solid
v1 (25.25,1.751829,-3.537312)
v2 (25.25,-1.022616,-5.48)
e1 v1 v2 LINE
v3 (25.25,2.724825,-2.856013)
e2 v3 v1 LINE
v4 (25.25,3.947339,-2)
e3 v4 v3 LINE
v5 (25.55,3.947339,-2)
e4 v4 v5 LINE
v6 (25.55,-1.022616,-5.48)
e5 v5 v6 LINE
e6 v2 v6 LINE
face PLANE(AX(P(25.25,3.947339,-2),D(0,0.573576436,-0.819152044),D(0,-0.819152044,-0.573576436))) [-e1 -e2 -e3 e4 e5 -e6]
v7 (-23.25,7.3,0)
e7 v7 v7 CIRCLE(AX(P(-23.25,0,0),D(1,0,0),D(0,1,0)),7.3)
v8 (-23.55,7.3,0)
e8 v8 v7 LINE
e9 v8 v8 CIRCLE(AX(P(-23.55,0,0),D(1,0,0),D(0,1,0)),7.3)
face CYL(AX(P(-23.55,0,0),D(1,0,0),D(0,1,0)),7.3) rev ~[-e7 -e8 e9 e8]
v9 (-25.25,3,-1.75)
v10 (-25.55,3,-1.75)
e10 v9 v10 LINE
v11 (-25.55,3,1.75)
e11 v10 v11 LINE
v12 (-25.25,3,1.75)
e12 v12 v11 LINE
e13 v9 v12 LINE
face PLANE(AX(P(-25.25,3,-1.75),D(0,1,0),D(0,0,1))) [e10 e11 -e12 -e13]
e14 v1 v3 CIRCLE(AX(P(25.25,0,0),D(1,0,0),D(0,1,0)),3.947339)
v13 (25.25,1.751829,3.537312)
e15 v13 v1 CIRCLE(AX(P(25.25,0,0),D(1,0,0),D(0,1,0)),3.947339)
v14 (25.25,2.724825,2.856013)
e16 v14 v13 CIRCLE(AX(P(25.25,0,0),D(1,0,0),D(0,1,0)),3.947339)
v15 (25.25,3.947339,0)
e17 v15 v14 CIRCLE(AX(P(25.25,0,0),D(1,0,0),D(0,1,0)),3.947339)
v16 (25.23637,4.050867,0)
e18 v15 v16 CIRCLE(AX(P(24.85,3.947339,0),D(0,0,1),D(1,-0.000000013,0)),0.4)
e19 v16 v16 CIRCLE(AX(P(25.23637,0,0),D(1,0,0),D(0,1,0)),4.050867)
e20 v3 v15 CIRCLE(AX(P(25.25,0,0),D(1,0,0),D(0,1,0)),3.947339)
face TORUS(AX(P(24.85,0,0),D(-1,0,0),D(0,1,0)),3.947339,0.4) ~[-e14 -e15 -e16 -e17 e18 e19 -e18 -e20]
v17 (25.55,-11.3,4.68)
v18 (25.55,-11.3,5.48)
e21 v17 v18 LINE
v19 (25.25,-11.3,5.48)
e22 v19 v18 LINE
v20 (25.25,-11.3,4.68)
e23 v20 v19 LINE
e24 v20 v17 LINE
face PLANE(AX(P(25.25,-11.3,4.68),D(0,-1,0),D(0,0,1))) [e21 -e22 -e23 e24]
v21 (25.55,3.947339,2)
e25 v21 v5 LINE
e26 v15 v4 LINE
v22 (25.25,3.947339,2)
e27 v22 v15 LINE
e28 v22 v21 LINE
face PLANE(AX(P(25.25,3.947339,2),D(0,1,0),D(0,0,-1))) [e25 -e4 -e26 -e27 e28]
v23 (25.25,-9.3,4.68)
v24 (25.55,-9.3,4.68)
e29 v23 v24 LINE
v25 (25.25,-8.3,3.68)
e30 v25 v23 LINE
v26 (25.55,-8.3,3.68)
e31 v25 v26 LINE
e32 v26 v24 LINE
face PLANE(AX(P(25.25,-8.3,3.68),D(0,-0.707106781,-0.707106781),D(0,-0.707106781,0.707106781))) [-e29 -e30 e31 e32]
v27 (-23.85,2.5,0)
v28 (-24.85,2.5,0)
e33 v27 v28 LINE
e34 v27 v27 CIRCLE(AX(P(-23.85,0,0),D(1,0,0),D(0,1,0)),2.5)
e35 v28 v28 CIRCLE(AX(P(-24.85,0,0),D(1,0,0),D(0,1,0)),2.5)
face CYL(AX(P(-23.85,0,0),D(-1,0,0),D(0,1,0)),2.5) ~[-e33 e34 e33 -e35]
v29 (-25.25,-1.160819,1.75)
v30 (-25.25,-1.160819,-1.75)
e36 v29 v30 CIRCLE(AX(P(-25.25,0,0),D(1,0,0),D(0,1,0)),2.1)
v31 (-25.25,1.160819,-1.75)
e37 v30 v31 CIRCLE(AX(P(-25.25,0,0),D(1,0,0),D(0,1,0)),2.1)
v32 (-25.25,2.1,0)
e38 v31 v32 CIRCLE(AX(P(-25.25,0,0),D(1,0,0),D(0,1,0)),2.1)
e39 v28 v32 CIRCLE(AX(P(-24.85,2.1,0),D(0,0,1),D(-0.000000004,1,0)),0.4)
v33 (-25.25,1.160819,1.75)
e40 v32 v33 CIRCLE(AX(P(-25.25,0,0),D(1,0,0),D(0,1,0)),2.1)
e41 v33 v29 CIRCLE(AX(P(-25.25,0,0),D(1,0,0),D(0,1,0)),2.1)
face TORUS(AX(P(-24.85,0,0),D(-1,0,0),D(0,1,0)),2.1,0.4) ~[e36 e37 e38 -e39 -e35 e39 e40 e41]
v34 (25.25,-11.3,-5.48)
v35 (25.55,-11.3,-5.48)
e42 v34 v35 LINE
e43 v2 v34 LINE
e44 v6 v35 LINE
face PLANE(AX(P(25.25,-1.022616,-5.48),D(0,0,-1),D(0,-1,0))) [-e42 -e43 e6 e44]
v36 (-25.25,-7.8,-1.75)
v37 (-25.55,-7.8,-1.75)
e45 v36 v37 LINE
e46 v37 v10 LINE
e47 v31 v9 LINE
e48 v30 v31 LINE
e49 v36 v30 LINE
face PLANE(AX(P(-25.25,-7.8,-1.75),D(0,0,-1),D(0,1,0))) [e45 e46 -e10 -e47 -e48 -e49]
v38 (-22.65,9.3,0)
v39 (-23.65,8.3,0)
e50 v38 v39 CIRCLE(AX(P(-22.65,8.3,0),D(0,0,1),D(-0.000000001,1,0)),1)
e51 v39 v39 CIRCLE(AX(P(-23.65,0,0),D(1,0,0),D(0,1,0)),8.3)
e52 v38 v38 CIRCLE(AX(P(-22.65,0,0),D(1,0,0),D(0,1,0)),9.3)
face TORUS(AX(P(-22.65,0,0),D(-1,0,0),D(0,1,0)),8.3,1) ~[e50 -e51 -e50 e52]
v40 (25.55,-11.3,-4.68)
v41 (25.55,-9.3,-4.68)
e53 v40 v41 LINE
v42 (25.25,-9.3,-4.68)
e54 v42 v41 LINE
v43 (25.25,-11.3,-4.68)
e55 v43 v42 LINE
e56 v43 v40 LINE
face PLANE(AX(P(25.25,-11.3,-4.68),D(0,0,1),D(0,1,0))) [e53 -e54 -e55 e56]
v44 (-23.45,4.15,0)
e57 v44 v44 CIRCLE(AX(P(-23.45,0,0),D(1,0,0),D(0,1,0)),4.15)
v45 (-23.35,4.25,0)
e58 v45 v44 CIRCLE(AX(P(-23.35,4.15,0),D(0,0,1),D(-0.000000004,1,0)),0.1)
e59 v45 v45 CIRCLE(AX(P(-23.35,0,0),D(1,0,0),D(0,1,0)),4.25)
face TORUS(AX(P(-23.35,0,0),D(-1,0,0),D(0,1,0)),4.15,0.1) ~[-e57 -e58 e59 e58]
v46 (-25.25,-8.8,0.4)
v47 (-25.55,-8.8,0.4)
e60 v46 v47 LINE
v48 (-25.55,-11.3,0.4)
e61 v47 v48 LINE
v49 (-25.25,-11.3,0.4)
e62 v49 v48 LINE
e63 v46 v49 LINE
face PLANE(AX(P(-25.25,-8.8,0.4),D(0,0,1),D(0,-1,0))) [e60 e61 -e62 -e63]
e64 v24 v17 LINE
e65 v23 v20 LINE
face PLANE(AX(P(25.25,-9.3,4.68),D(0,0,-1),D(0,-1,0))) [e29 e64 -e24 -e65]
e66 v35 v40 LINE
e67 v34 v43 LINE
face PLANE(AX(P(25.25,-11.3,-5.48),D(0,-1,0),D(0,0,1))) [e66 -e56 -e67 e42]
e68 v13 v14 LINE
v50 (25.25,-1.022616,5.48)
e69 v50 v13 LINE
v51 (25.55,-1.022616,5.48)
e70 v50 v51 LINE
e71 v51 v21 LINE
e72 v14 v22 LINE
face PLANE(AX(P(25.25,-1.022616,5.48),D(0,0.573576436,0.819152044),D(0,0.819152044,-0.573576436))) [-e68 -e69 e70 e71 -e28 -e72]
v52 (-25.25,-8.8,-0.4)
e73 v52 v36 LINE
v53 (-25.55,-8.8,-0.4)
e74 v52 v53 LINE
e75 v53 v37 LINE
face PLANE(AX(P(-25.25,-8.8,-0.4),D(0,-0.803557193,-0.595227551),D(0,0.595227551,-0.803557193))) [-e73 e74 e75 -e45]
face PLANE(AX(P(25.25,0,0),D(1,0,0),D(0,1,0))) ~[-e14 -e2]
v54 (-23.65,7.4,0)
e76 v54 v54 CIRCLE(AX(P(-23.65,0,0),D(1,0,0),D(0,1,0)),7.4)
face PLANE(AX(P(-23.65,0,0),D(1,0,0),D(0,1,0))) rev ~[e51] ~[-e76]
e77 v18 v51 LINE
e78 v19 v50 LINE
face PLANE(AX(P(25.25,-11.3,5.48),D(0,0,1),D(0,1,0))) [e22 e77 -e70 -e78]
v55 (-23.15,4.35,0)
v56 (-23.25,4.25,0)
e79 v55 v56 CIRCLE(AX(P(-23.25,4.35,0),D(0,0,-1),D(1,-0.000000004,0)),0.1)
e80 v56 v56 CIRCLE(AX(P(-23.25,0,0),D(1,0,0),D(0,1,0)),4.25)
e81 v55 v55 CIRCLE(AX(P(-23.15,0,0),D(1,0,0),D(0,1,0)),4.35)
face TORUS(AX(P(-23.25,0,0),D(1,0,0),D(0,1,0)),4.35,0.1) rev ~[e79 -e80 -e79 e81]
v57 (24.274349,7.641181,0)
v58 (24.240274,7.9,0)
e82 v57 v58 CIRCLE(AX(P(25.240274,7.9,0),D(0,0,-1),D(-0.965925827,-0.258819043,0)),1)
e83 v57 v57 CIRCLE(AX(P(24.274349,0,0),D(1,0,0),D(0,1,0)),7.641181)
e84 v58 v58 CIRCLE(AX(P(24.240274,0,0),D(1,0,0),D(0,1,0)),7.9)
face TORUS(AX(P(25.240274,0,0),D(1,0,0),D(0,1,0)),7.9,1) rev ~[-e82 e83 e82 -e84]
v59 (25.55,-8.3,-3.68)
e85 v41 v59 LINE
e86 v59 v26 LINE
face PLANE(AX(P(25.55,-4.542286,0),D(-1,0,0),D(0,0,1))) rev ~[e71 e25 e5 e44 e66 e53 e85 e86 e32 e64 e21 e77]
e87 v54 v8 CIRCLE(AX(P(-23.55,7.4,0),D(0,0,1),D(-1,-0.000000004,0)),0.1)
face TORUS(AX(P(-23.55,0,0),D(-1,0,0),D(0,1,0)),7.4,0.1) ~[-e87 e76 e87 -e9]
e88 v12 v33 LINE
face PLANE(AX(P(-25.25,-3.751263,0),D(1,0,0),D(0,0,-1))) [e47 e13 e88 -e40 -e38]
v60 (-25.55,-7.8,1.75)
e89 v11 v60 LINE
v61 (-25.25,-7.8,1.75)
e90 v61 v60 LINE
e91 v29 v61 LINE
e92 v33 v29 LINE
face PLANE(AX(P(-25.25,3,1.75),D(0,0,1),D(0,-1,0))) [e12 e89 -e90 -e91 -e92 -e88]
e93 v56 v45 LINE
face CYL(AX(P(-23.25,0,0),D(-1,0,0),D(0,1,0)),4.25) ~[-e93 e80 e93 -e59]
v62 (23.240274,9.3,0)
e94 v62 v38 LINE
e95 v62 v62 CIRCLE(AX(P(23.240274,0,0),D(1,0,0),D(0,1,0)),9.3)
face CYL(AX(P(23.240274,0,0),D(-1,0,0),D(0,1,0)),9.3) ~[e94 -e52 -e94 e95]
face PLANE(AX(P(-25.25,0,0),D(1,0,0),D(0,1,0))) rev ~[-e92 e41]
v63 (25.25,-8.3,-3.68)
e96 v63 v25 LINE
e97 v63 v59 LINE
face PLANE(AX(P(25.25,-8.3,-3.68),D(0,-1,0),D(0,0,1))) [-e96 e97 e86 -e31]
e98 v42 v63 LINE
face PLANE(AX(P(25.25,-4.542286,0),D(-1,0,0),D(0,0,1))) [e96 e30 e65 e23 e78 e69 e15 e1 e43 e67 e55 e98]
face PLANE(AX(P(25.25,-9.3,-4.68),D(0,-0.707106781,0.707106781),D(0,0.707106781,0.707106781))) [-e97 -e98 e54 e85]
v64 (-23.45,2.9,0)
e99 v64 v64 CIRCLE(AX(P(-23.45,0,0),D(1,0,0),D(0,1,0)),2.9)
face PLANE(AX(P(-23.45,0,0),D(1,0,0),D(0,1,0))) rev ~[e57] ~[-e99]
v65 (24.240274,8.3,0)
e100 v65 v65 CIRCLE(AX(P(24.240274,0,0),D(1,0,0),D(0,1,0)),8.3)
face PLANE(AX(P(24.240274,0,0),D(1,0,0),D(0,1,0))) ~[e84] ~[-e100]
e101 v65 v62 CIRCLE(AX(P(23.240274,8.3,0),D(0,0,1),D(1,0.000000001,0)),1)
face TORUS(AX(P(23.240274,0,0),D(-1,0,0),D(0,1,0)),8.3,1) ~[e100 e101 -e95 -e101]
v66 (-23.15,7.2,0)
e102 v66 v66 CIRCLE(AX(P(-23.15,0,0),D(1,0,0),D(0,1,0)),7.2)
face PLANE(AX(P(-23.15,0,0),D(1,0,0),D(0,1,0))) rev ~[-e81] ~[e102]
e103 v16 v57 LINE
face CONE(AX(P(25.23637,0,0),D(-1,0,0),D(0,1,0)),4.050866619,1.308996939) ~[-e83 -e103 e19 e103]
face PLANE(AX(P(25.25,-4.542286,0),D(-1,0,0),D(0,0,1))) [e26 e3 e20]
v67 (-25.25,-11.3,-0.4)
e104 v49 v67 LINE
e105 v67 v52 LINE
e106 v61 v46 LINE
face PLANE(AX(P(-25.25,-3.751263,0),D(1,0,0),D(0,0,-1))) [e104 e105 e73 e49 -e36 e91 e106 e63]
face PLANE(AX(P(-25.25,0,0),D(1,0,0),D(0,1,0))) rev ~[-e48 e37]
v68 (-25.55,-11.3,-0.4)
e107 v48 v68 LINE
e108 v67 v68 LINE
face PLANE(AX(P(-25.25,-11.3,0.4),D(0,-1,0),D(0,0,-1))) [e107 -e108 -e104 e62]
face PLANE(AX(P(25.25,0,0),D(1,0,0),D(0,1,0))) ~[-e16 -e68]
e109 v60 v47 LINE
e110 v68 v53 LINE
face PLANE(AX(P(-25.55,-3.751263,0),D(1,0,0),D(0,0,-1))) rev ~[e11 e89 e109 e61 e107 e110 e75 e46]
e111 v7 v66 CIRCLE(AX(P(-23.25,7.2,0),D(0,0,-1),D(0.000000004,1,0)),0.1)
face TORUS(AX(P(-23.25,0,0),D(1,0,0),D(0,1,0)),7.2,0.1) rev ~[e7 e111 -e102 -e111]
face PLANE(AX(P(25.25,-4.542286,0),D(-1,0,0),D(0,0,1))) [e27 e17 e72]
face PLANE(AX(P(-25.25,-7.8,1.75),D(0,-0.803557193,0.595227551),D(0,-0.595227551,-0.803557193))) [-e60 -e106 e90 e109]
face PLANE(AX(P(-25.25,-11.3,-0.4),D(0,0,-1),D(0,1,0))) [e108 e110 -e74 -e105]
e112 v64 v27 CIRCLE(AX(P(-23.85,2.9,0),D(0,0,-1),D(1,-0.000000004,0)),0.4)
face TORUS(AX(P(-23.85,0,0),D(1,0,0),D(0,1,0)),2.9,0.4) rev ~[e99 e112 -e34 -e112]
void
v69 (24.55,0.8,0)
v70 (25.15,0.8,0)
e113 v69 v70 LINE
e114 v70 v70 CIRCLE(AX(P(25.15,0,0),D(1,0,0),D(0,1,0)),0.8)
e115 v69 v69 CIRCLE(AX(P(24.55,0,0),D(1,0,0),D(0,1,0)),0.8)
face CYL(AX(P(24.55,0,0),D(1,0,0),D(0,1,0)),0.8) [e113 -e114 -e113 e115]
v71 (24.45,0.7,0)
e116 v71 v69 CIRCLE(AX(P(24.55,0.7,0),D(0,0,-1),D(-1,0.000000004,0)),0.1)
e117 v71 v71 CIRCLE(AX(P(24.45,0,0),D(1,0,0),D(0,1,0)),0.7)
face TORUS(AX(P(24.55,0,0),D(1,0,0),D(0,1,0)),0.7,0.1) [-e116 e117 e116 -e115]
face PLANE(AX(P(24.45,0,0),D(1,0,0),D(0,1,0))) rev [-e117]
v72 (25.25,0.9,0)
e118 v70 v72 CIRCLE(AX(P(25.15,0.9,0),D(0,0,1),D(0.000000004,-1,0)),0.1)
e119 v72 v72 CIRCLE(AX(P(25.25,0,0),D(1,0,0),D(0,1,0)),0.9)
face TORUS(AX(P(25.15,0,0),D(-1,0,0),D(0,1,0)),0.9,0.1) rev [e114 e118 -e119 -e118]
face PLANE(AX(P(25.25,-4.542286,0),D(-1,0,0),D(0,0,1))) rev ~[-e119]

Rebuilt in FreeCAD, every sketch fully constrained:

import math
import FreeCAD as App
import Part
import Sketcher
from FreeCAD import Vector
Q = App.Units.Quantity


def add_polygon(sketch, points):
    """Adds a closed chain of lines whose ends are joined by coincident constraints."""
    first, n = sketch.GeometryCount, len(points)
    for a, b in zip(points, points[1:] + points[:1]):
        sketch.addGeometry(Part.LineSegment(App.Vector(*a, 0), App.Vector(*b, 0)), False)
    for i in range(n):
        sketch.addConstraint(Sketcher.Constraint("Coincident", first + i, 2, first + (i + 1) % n, 1))

doc = App.newDocument("Part")
body = doc.addObject("PartDesign::Body", "Body")

sketch1 = doc.addObject("Sketcher::SketchObject", "Sketch")
body.addObject(sketch1)
sketch1.AttachmentSupport = (doc.XY_Plane, [""])
sketch1.MapMode = "FlatFace"
sketch1.addGeometry([
    Part.LineSegment(Vector(-25.25, 0, 0), Vector(24.45, 0, 0)),
    Part.LineSegment(Vector(24.45, 0, 0), Vector(24.45, 0.7, 0)),
    Part.ArcOfCircle(Part.Circle(Vector(24.55, 0.7, 0), Vector(0, 0, 1), 0.1), math.radians(90), math.radians(180)),
    Part.LineSegment(Vector(24.55, 0.8, 0), Vector(25.15, 0.8, 0)),
    Part.ArcOfCircle(Part.Circle(Vector(25.15, 0.9, 0), Vector(0, 0, 1), 0.1), math.radians(-90), math.radians(0)),
    Part.LineSegment(Vector(25.25, 0.9, 0), Vector(25.25, 3.947339, 0)),
    Part.ArcOfCircle(Part.Circle(Vector(24.85, 3.947339, 0), Vector(0, 0, 1), 0.4), math.radians(-0.000001), math.radians(15)),
    Part.LineSegment(Vector(25.23637, 4.050867, 0), Vector(24.274349, 7.641181, 0)),
    Part.ArcOfCircle(Part.Circle(Vector(25.240274, 7.9, 0), Vector(0, 0, 1), 1), math.radians(-180), math.radians(-165)),
    Part.LineSegment(Vector(24.240274, 7.9, 0), Vector(24.240274, 8.3, 0)),
    Part.ArcOfCircle(Part.Circle(Vector(23.240274, 8.3, 0), Vector(0, 0, 1), 1), math.radians(0), math.radians(90)),
    Part.LineSegment(Vector(23.240274, 9.3, 0), Vector(-22.65, 9.3, 0)),
    Part.ArcOfCircle(Part.Circle(Vector(-22.65, 8.3, 0), Vector(0, 0, 1), 1), math.radians(90), math.radians(180)),
    Part.LineSegment(Vector(-23.65, 8.3, 0), Vector(-23.65, 7.4, 0)),
    Part.ArcOfCircle(Part.Circle(Vector(-23.55, 7.4, 0), Vector(0, 0, 1), 0.1), math.radians(180), math.radians(270)),
    Part.LineSegment(Vector(-23.55, 7.3, 0), Vector(-23.25, 7.3, 0)),
    Part.ArcOfCircle(Part.Circle(Vector(-23.25, 7.2, 0), Vector(0, 0, 1), 0.1), math.radians(0), math.radians(90)),
    Part.LineSegment(Vector(-23.15, 7.2, 0), Vector(-23.15, 4.35, 0)),
    Part.ArcOfCircle(Part.Circle(Vector(-23.25, 4.35, 0), Vector(0, 0, 1), 0.1), math.radians(-90), math.radians(0)),
    Part.LineSegment(Vector(-23.25, 4.25, 0), Vector(-23.35, 4.25, 0)),
    Part.ArcOfCircle(Part.Circle(Vector(-23.35, 4.15, 0), Vector(0, 0, 1), 0.1), math.radians(90), math.radians(180)),
    Part.LineSegment(Vector(-23.45, 4.15, 0), Vector(-23.45, 2.9, 0)),
    Part.ArcOfCircle(Part.Circle(Vector(-23.85, 2.9, 0), Vector(0, 0, 1), 0.4), math.radians(-90), math.radians(0)),
    Part.LineSegment(Vector(-23.85, 2.5, 0), Vector(-24.85, 2.5, 0)),
    Part.ArcOfCircle(Part.Circle(Vector(-24.85, 2.1, 0), Vector(0, 0, 1), 0.4), math.radians(90), math.radians(180)),
    Part.LineSegment(Vector(-25.25, 2.1, 0), Vector(-25.25, 0, 0)),
], False)
sketch1.addConstraint([
    Sketcher.Constraint("Coincident", 0, 2, 1, 1),
    Sketcher.Constraint("Tangent", 1, 2, 2, 2),
    Sketcher.Constraint("Tangent", 2, 1, 3, 1),
    Sketcher.Constraint("Tangent", 3, 2, 4, 1),
    Sketcher.Constraint("Tangent", 4, 2, 5, 1),
    Sketcher.Constraint("Tangent", 5, 2, 6, 1),
    Sketcher.Constraint("Tangent", 6, 2, 7, 1),
    Sketcher.Constraint("Tangent", 7, 2, 8, 2),
    Sketcher.Constraint("Tangent", 8, 1, 9, 1),
    Sketcher.Constraint("Tangent", 9, 2, 10, 1),
    Sketcher.Constraint("Tangent", 10, 2, 11, 1),
    Sketcher.Constraint("Tangent", 11, 2, 12, 1),
    Sketcher.Constraint("Tangent", 12, 2, 13, 1),
    Sketcher.Constraint("Tangent", 13, 2, 14, 1),
    Sketcher.Constraint("Tangent", 14, 2, 15, 1),
    Sketcher.Constraint("Tangent", 15, 2, 16, 2),
    Sketcher.Constraint("Tangent", 16, 1, 17, 1),
    Sketcher.Constraint("Tangent", 17, 2, 18, 2),
    Sketcher.Constraint("Tangent", 18, 1, 19, 1),
    Sketcher.Constraint("Tangent", 19, 2, 20, 1),
    Sketcher.Constraint("Tangent", 20, 2, 21, 1),
    Sketcher.Constraint("Tangent", 21, 2, 22, 2),
    Sketcher.Constraint("Tangent", 22, 1, 23, 1),
    Sketcher.Constraint("Tangent", 23, 2, 24, 1),
    Sketcher.Constraint("Tangent", 24, 2, 25, 1),
    Sketcher.Constraint("Coincident", 25, 2, 0, 1),
    Sketcher.Constraint("Horizontal", 0),
    Sketcher.Constraint("Vertical", 1),
    Sketcher.Constraint("Horizontal", 3),
    Sketcher.Constraint("Vertical", 5),
    Sketcher.Constraint("Vertical", 9),
    Sketcher.Constraint("Horizontal", 11),
    Sketcher.Constraint("Vertical", 13),
    Sketcher.Constraint("Horizontal", 15),
    Sketcher.Constraint("Vertical", 17),
    Sketcher.Constraint("Horizontal", 19),
    Sketcher.Constraint("Vertical", 21),
    Sketcher.Constraint("Horizontal", 23),
    Sketcher.Constraint("Vertical", 25),
    Sketcher.Constraint("Equal", 2, 4),
    Sketcher.Constraint("Equal", 8, 10),
    Sketcher.Constraint("Equal", 10, 12),
    Sketcher.Constraint("Equal", 4, 14),
    Sketcher.Constraint("Equal", 14, 16),
    Sketcher.Constraint("Equal", 16, 18),
    Sketcher.Constraint("Equal", 18, 20),
    Sketcher.Constraint("Equal", 6, 22),
    Sketcher.Constraint("Equal", 22, 24),
    Sketcher.Constraint("PointOnObject", 0, 2, -1),
    Sketcher.Constraint("Radius", 8, Q("1 mm")),
    Sketcher.Constraint("Radius", 2, Q("0.1 mm")),
    Sketcher.Constraint("Radius", 6, Q("0.4 mm")),
    Sketcher.Constraint("DistanceX", 23, 2, 23, 1, Q("1 mm")),
    Sketcher.Constraint("Angle", 7, Q("105 deg")),
    Sketcher.Constraint("DistanceX", 0, 1, 0, 2, Q("49.7 mm")),
    Sketcher.Constraint("DistanceX", 3, 1, 3, 2, Q("0.6 mm")),
    Sketcher.Constraint("DistanceX", 15, 1, 15, 2, Q("0.3 mm")),
    Sketcher.Constraint("DistanceX", 19, 2, 19, 1, Q("0.1 mm")),
    Sketcher.Constraint("DistanceY", 1, 1, 1, 2, Q("0.7 mm")),
    Sketcher.Constraint("DistanceY", 9, 1, 9, 2, Q("0.4 mm")),
    Sketcher.Constraint("DistanceY", 13, 2, 13, 1, Q("0.9 mm")),
    Sketcher.Constraint("DistanceY", 25, 2, 25, 1, Q("2.1 mm")),
    Sketcher.Constraint("DistanceY", 4, 3, 8, 3, Q("7 mm")),
    Sketcher.Constraint("DistanceY", 17, 2, 17, 1, Q("2.85 mm")),
    Sketcher.Constraint("DistanceX", -1, 1, 2, 3, Q("24.55 mm")),
    Sketcher.Constraint("DistanceY", 5, 1, 5, 2, Q("3.047339 mm")),
])
revolution = doc.addObject("PartDesign::Revolution", "Revolution")
body.addObject(revolution)
revolution.Profile = sketch1
revolution.ReferenceAxis = (sketch1, ["H_Axis"])
revolution.Angle = 360

sketch2 = doc.addObject("Sketcher::SketchObject", "Sketch001")
body.addObject(sketch2)
sketch2.AttachmentSupport = (doc.YZ_Plane, [""])
sketch2.MapMode = "FlatFace"
sketch2.AttachmentOffset = App.Placement(Vector(0, 0, 25.25), App.Rotation())
add_polygon(sketch2, [(3.947339, -2), (3.947339, 2), (-1.022616, 5.48), (-11.3, 5.48), (-11.3, 4.68), (-9.3, 4.68), (-8.3, 3.68), (-8.3, -3.68), (-9.3, -4.68), (-11.3, -4.68), (-11.3, -5.48), (-1.022616, -5.48)])
sketch2.addConstraint([
    Sketcher.Constraint("Vertical", 0),
    Sketcher.Constraint("Horizontal", 2),
    Sketcher.Constraint("Vertical", 3),
    Sketcher.Constraint("Horizontal", 4),
    Sketcher.Constraint("Vertical", 6),
    Sketcher.Constraint("Horizontal", 8),
    Sketcher.Constraint("Vertical", 9),
    Sketcher.Constraint("Horizontal", 10),
    Sketcher.Constraint("Symmetric", 4, 2, 7, 2, -1),
    Sketcher.Constraint("Symmetric", 2, 2, 9, 2, -1),
    Sketcher.Constraint("Perpendicular", 5, 7),
    Sketcher.Constraint("Vertical", 1, 2, 10, 2),
    Sketcher.Constraint("Equal", 5, 7),
    Sketcher.Constraint("Equal", 1, 11),
    Sketcher.Constraint("DistanceX", 4, 1, 4, 2, Q("2 mm")),
    Sketcher.Constraint("DistanceY", 0, 1, 0, 2, Q("4 mm")),
    Sketcher.Constraint("Angle", 1, Q("145 deg")),
    Sketcher.Constraint("DistanceY", 3, 2, 3, 1, Q("0.8 mm")),
    Sketcher.Constraint("DistanceX", 4, 2, 5, 2, Q("1 mm")),
    Sketcher.Constraint("DistanceY", 6, 2, 6, 1, Q("7.36 mm")),
    Sketcher.Constraint("DistanceX", 2, 2, -1, 1, Q("11.3 mm")),
    Sketcher.Constraint("DistanceX", 2, 2, 2, 1, Q("10.277384 mm")),
])
pad1 = doc.addObject("PartDesign::Pad", "Pad")
body.addObject(pad1)
pad1.Profile = sketch2
pad1.Length = 0.3

sketch3 = doc.addObject("Sketcher::SketchObject", "Sketch002")
body.addObject(sketch3)
sketch3.AttachmentSupport = (doc.YZ_Plane, [""])
sketch3.MapMode = "FlatFace"
sketch3.AttachmentOffset = App.Placement(Vector(0, 0, -25.25), App.Rotation())
add_polygon(sketch3, [(3, 1.75), (3, -1.75), (-7.8, -1.75), (-8.8, -0.4), (-11.3, -0.4), (-11.3, 0.4), (-8.8, 0.4), (-7.8, 1.75)])
sketch3.addConstraint([
    Sketcher.Constraint("Vertical", 0),
    Sketcher.Constraint("Horizontal", 1),
    Sketcher.Constraint("Horizontal", 3),
    Sketcher.Constraint("Vertical", 4),
    Sketcher.Constraint("Horizontal", 5),
    Sketcher.Constraint("Horizontal", 7),
    Sketcher.Constraint("Symmetric", 2, 2, 5, 2, -1),
    Sketcher.Constraint("Symmetric", 1, 2, 6, 2, -1),
    Sketcher.Constraint("DistanceX", 1, 2, 1, 1, Q("10.8 mm")),
    Sketcher.Constraint("DistanceX", 3, 2, 3, 1, Q("2.5 mm")),
    Sketcher.Constraint("DistanceY", 0, 2, 0, 1, Q("3.5 mm")),
    Sketcher.Constraint("DistanceY", 4, 1, 4, 2, Q("0.8 mm")),
    Sketcher.Constraint("DistanceX", -1, 1, 0, 2, Q("3 mm")),
    Sketcher.Constraint("DistanceX", 2, 2, 1, 2, Q("1 mm")),
])
pad2 = doc.addObject("PartDesign::Pad", "Pad001")
body.addObject(pad2)
pad2.Profile = sketch3
pad2.Length = 0.3
pad2.Reversed = True

doc.recompute()
